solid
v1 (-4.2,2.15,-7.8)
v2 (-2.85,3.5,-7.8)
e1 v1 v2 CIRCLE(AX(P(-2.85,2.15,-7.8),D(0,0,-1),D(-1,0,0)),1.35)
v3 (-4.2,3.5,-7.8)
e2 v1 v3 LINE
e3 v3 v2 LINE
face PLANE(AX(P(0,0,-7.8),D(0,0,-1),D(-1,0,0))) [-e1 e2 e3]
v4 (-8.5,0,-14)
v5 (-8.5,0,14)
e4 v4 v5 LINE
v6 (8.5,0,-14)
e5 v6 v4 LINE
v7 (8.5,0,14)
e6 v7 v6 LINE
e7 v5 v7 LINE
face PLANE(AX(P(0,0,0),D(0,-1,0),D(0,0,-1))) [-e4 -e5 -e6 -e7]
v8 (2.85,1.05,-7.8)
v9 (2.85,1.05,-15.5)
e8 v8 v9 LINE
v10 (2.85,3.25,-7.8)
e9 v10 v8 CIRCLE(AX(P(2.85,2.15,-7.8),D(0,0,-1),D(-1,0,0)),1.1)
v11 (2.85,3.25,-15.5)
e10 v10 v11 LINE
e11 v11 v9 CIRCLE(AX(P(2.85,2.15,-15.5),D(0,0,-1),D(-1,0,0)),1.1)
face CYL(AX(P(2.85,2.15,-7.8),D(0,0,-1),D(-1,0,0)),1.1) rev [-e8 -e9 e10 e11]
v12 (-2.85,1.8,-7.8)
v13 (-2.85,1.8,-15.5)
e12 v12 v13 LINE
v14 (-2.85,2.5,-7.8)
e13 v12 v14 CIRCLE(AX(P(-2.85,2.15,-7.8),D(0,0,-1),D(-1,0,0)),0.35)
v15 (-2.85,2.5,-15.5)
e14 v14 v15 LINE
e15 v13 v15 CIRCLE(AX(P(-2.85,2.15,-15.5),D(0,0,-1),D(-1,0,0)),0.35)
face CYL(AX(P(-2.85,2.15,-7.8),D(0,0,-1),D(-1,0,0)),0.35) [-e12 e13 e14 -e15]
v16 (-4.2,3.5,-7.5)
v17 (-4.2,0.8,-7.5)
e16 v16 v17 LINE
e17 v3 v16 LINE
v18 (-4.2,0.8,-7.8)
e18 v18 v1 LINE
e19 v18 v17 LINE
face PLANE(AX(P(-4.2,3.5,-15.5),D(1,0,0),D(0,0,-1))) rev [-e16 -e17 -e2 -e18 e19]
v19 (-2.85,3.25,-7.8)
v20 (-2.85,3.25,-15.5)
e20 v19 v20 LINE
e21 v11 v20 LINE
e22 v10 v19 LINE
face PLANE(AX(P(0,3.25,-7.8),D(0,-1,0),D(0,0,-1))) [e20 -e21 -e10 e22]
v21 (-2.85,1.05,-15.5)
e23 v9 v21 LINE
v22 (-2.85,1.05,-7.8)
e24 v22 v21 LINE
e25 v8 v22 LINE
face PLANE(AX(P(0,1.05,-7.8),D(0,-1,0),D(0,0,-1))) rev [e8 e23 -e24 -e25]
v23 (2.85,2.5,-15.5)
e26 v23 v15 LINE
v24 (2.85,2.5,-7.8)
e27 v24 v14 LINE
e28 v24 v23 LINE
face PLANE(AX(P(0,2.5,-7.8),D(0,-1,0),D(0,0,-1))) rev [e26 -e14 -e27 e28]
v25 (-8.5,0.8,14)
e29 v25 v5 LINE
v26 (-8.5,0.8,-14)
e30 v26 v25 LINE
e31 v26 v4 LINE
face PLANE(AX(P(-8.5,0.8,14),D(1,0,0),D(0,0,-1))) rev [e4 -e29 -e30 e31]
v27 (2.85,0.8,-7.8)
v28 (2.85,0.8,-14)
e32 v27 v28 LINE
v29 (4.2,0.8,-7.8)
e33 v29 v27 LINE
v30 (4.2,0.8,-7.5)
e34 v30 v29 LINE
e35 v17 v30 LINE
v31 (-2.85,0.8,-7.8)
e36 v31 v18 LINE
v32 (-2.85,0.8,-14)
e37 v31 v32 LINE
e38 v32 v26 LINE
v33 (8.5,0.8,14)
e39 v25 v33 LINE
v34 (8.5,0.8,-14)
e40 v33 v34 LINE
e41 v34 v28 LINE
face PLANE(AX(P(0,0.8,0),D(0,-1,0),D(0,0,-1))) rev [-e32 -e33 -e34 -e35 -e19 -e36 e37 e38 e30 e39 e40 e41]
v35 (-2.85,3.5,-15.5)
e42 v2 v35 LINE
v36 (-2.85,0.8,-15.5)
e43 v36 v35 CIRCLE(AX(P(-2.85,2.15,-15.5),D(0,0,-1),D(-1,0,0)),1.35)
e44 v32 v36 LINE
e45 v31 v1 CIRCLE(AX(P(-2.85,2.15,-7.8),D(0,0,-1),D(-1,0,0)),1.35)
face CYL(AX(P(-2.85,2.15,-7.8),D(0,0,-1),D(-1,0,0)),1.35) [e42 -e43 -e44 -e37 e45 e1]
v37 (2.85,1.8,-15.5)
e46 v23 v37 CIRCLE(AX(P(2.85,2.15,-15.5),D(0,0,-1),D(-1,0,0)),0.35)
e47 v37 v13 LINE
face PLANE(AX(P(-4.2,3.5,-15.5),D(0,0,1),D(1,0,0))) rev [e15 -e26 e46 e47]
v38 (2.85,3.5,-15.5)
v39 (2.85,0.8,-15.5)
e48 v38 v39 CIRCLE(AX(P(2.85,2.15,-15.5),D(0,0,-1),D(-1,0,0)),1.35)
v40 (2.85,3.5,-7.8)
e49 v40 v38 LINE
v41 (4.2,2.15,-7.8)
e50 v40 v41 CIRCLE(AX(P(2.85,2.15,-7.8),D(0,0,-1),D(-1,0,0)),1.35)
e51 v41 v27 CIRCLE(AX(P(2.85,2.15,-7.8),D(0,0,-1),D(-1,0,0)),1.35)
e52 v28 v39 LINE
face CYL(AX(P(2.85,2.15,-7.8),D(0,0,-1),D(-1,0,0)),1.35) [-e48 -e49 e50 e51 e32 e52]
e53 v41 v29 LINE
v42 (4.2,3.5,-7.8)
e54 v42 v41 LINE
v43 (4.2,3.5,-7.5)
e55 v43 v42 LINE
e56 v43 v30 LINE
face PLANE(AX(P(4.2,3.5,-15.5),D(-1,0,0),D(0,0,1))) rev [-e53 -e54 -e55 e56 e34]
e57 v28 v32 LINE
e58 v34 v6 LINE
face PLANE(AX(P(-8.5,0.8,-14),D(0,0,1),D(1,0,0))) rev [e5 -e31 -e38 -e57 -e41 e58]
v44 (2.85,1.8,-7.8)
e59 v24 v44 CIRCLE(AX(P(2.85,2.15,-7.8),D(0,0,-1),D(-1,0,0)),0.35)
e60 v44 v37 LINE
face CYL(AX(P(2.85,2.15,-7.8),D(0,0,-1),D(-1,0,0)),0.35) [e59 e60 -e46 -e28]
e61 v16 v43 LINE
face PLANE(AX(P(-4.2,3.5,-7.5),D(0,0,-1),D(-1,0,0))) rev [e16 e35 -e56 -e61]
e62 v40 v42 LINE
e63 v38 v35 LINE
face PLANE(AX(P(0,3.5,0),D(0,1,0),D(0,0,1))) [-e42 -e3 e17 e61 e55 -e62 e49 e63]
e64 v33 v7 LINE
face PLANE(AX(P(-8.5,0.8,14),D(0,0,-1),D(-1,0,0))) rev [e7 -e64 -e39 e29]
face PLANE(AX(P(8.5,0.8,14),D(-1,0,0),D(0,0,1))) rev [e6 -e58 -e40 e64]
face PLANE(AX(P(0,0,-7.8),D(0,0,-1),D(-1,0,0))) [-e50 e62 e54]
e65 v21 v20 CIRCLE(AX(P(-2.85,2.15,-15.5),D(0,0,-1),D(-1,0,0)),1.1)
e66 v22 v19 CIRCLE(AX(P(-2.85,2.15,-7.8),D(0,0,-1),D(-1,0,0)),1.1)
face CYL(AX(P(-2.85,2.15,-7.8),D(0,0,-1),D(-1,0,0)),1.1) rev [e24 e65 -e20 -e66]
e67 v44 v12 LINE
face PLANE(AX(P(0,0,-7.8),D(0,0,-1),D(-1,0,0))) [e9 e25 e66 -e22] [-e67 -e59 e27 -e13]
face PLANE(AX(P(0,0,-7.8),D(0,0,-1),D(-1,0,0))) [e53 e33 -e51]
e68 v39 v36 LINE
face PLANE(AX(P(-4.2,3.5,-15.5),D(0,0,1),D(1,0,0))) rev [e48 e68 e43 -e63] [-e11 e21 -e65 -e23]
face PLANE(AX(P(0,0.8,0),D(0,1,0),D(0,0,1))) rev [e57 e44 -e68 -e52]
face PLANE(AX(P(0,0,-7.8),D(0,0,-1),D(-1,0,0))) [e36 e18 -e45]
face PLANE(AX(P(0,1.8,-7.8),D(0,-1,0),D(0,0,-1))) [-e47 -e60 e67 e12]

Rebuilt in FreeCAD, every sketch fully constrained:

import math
import FreeCAD as App
import Part
import Sketcher
Q = App.Units.Quantity


def add_polygon(sketch, points):
    """Adds a closed chain of lines whose ends are joined by coincident constraints."""
    first, n = sketch.GeometryCount, len(points)
    for a, b in zip(points, points[1:] + points[:1]):
        sketch.addGeometry(Part.LineSegment(App.Vector(*a, 0), App.Vector(*b, 0)), False)
    for i in range(n):
        sketch.addConstraint(Sketcher.Constraint("Coincident", first + i, 2, first + (i + 1) % n, 1))

doc = App.newDocument("Part")
params = doc.addObject("Spreadsheet::Sheet", "Params")
for row, (alias, value) in enumerate([
    ("sketch1_width", "17 mm"),
    ("sketch1_height", "28 mm"),
    ("pad1_length", "0.8 mm"),
    ("sketch2_height", "8 mm"),
    ("sketch2_width", "8.4 mm"),
    ("pad2_length", "2.7 mm"),
    ("sketch3_radius", "1.1 mm"),
    ("sketch3_radius2", "1.35 mm"),
    ("sketch3_radius3", "0.35 mm"),
    ("sketch3_width", "5.7 mm"),
    ("pocket1_length", "7.7 mm"),
], start=1):
    params.set(f"A{row}", alias)
    params.set(f"B{row}", "=" + value)
    params.setAlias(f"B{row}", alias)

body = doc.addObject("PartDesign::Body", "Body")

# Sketch on XZ plane
sketch1 = body.newObject("Sketcher::SketchObject", "Sketch")
sketch1.AttachmentSupport = (doc.getObject("XZ_Plane"), [""])
sketch1.MapMode = "FlatFace"
add_polygon(sketch1, [(-8, -14), (-8, 14), (8, 14), (8, -14)])  # lines 0-3
sketch1.addConstraint([
    Sketcher.Constraint("Vertical", 0),
    Sketcher.Constraint("Horizontal", 1),
    Sketcher.Constraint("Vertical", 2),
    Sketcher.Constraint("Horizontal", 3),
    Sketcher.Constraint("Symmetric", 0, 2, 2, 2, -1, 1),
    Sketcher.Constraint("DistanceX", 1, 1, 1, 2, Q("17 mm")),
    Sketcher.Constraint("DistanceY", 0, 1, 0, 2, Q("28 mm")),
])
sketch1.setExpression("Constraints[9]", "Params.sketch1_width")
sketch1.setExpression("Constraints[10]", "Params.sketch1_height")
pad1 = body.newObject("PartDesign::Pad", "Pad")
pad1.Profile = sketch1
pad1.setExpression("Length", "Params.pad1_length")
pad1.Reversed = True

# Sketch on XZ plane
sketch2 = body.newObject("Sketcher::SketchObject", "Sketch001")
sketch2.AttachmentSupport = (doc.getObject("XZ_Plane"), [""])
sketch2.MapMode = "FlatFace"
sketch2.AttachmentOffset = App.Placement(App.Vector(0, 0, -0.8), App.Rotation())
add_polygon(sketch2, [(-4, -16), (-4, -8), (4, -8), (4, -16)])  # lines 0-3
sketch2.addConstraint([
    Sketcher.Constraint("Vertical", 0),
    Sketcher.Constraint("Horizontal", 1),
    Sketcher.Constraint("Vertical", 2),
    Sketcher.Constraint("Horizontal", 3),
    Sketcher.Constraint("DistanceY", 0, 1, 0, 2, Q("8 mm")),
    Sketcher.Constraint("DistanceX", 1, 1, 1, 2, Q("8.4 mm")),
    Sketcher.Constraint("DistanceX", 0, 2, -1, 1, Q("4.2 mm")),
    Sketcher.Constraint("DistanceY", 0, 2, -1, 1, Q("7.5 mm")),
])
sketch2.setExpression("Constraints[8]", "Params.sketch2_height")
sketch2.setExpression("Constraints[9]", "Params.sketch2_width")
pad2 = body.newObject("PartDesign::Pad", "Pad001")
pad2.Profile = sketch2
pad2.setExpression("Length", "Params.pad2_length")
pad2.Reversed = True

# Sketch on XY plane
sketch3 = body.newObject("Sketcher::SketchObject", "Sketch002")
sketch3.AttachmentSupport = (doc.getObject("XY_Plane"), [""])
sketch3.MapMode = "FlatFace"
sketch3.AttachmentOffset = App.Placement(App.Vector(0, 0, -15.5), App.Rotation())
sketch3.addGeometry([
    Part.ArcOfCircle(Part.Circle(App.Vector(2.85, 2.15, 0), App.Vector(0, 0, 1), 1.35), math.radians(0), math.radians(90)),  # 0
    Part.LineSegment(App.Vector(2.85, 3.5, 0), App.Vector(4.2, 3.5, 0)),  # 1
    Part.LineSegment(App.Vector(4.2, 3.5, 0), App.Vector(4.2, 2.15, 0)),  # 2
    Part.ArcOfCircle(Part.Circle(App.Vector(2.85, 2.15, 0), App.Vector(0, 0, 1), 1.35), math.radians(-90), math.radians(0)),  # 3
    Part.LineSegment(App.Vector(4.2, 2.15, 0), App.Vector(4.2, 0.8, 0)),  # 4
    Part.LineSegment(App.Vector(4.2, 0.8, 0), App.Vector(2.85, 0.8, 0)),  # 5
    Part.LineSegment(App.Vector(-4.2, 0.8, 0), App.Vector(-4.2, 2.15, 0)),  # 6
    Part.ArcOfCircle(Part.Circle(App.Vector(-2.85, 2.15, 0), App.Vector(0, 0, 1), 1.35), math.radians(180), math.radians(270)),  # 7
    Part.LineSegment(App.Vector(-2.85, 0.8, 0), App.Vector(-4.2, 0.8, 0)),  # 8
    Part.LineSegment(App.Vector(-4.2, 3.5, 0), App.Vector(-2.85, 3.5, 0)),  # 9
    Part.ArcOfCircle(Part.Circle(App.Vector(-2.85, 2.15, 0), App.Vector(0, 0, 1), 1.35), math.radians(90), math.radians(180)),  # 10
    Part.LineSegment(App.Vector(-4.2, 2.15, 0), App.Vector(-4.2, 3.5, 0)),  # 11
    Part.LineSegment(App.Vector(2.85, 1.05, 0), App.Vector(-2.85, 1.05, 0)),  # 12
    Part.ArcOfCircle(Part.Circle(App.Vector(-2.85, 2.15, 0), App.Vector(0, 0, 1), 1.1), math.radians(90), math.radians(270)),  # 13
    Part.LineSegment(App.Vector(-2.85, 3.25, 0), App.Vector(2.85, 3.25, 0)),  # 14
    Part.ArcOfCircle(Part.Circle(App.Vector(2.85, 2.15, 0), App.Vector(0, 0, 1), 1.1), math.radians(-90), math.radians(90)),  # 15
    Part.ArcOfCircle(Part.Circle(App.Vector(-2.85, 2.15, 0), App.Vector(0, 0, 1), 0.35), math.radians(90), math.radians(270)),  # 16
    Part.LineSegment(App.Vector(-2.85, 1.8, 0), App.Vector(2.85, 1.8, 0)),  # 17
    Part.ArcOfCircle(Part.Circle(App.Vector(2.85, 2.15, 0), App.Vector(0, 0, 1), 0.35), math.radians(-90), math.radians(90)),  # 18
    Part.LineSegment(App.Vector(2.85, 2.5, 0), App.Vector(-2.85, 2.5, 0)),  # 19
], False)
sketch3.addConstraint([
    Sketcher.Constraint("Tangent", 0, 2, 1, 1),
    Sketcher.Constraint("Coincident", 1, 2, 2, 1),
    Sketcher.Constraint("Tangent", 2, 2, 0, 1),
    Sketcher.Constraint("Tangent", 3, 2, 4, 1),
    Sketcher.Constraint("Coincident", 4, 2, 5, 1),
    Sketcher.Constraint("Tangent", 5, 2, 3, 1),
    Sketcher.Constraint("Tangent", 6, 2, 7, 1),
    Sketcher.Constraint("Tangent", 7, 2, 8, 1),
    Sketcher.Constraint("Coincident", 8, 2, 6, 1),
    Sketcher.Constraint("Tangent", 9, 2, 10, 1),
    Sketcher.Constraint("Tangent", 10, 2, 11, 1),
    Sketcher.Constraint("Coincident", 11, 2, 9, 1),
    Sketcher.Constraint("Tangent", 12, 2, 13, 2),
    Sketcher.Constraint("Tangent", 13, 1, 14, 1),
    Sketcher.Constraint("Tangent", 14, 2, 15, 2),
    Sketcher.Constraint("Tangent", 15, 1, 12, 1),
    Sketcher.Constraint("Tangent", 16, 2, 17, 1),
    Sketcher.Constraint("Tangent", 17, 2, 18, 1),
    Sketcher.Constraint("Tangent", 18, 2, 19, 1),
    Sketcher.Constraint("Tangent", 19, 2, 16, 1),
    Sketcher.Constraint("Horizontal", 1),
    Sketcher.Constraint("Vertical", 2),
    Sketcher.Constraint("Vertical", 4),
    Sketcher.Constraint("Horizontal", 5),
    Sketcher.Constraint("Vertical", 6),
    Sketcher.Constraint("Horizontal", 8),
    Sketcher.Constraint("Horizontal", 9),
    Sketcher.Constraint("Vertical", 11),
    Sketcher.Constraint("Horizontal", 12),
    Sketcher.Constraint("Horizontal", 14),
    Sketcher.Constraint("Horizontal", 17),
    Sketcher.Constraint("Horizontal", 19),
    Sketcher.Constraint("Coincident", 3, 3, 0, 3),
    Sketcher.Constraint("Coincident", 10, 3, 7, 3),
    Sketcher.Constraint("Coincident", 13, 3, 7, 3),
    Sketcher.Constraint("Coincident", 15, 3, 0, 3),
    Sketcher.Constraint("Coincident", 16, 3, 7, 3),
    Sketcher.Constraint("Equal", 0, 3),
    Sketcher.Constraint("Equal", 3, 7),
    Sketcher.Constraint("Equal", 7, 10),
    Sketcher.Constraint("Vertical", 18, 3, 0, 2),
    Sketcher.Constraint("Radius", 13, Q("1.1 mm")),
    Sketcher.Constraint("Radius", 0, Q("1.35 mm")),
    Sketcher.Constraint("Radius", 16, Q("0.35 mm")),
    Sketcher.Constraint("DistanceX", 12, 2, 12, 1, Q("5.7 mm")),
    Sketcher.Constraint("DistanceY", -1, 1, 0, 2, Q("3.5 mm")),
    Sketcher.Constraint("DistanceX", -1, 1, 1, 2, Q("4.2 mm")),
])
sketch3.setExpression("Constraints[41]", "Params.sketch3_radius")
sketch3.setExpression("Constraints[42]", "Params.sketch3_radius2")
sketch3.setExpression("Constraints[43]", "Params.sketch3_radius3")
sketch3.setExpression("Constraints[44]", "Params.sketch3_width")
pocket1 = body.newObject("PartDesign::Pocket", "Pocket")
pocket1.Profile = sketch3
pocket1.setExpression("Length", "Params.pocket1_length")
pocket1.Reversed = True

doc.recompute()
